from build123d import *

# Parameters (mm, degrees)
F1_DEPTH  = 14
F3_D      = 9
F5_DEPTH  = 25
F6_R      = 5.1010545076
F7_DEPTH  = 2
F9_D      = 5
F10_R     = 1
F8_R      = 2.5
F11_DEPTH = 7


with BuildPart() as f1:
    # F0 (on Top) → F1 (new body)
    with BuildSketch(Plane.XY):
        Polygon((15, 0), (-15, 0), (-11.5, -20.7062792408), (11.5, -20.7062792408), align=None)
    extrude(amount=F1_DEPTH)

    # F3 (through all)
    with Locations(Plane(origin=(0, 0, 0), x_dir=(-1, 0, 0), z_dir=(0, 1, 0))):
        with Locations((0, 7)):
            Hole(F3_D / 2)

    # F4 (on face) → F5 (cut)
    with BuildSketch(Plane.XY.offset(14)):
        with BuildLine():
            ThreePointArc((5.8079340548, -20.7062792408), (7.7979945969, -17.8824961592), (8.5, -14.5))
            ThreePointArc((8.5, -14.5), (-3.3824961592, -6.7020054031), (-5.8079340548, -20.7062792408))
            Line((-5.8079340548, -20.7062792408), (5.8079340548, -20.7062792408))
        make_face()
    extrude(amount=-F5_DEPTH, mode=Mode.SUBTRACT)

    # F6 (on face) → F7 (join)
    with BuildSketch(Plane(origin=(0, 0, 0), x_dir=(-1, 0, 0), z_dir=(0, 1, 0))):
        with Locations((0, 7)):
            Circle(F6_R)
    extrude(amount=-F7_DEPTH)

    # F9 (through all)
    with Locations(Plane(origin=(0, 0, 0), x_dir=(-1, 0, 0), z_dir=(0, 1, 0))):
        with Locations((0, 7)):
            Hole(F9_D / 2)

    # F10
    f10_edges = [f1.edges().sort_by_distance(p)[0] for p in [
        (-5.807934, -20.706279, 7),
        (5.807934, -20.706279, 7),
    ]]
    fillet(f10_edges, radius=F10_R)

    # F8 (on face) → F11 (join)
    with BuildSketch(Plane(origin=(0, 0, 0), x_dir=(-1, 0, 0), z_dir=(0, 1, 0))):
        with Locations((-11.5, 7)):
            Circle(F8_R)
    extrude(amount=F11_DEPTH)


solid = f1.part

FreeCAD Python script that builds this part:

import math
import FreeCAD as App
import Part
import Sketcher
from FreeCAD import Vector
Q = App.Units.Quantity


def edges_at(feature, points):
    """Names of the edges that pass closest to the given points."""
    edges = feature.Shape.Edges
    near = lambda p: min(range(len(edges)), key=lambda i: edges[i].distToShape(Part.Vertex(*p))[0])
    return sorted({f"Edge{near(p) + 1}" for p in points})

doc = App.newDocument("Part")
body = doc.addObject("PartDesign::Body", "Body")

# Sketch on XY plane
sketch1 = body.newObject("Sketcher::SketchObject", "Sketch")
sketch1.AttachmentSupport = (doc.getObject("XY_Plane"), [""])
sketch1.MapMode = "FlatFace"
sketch1.addGeometry([
    Part.LineSegment(Vector(15, 0, 0), Vector(-15, 0, 0)),
    Part.LineSegment(Vector(-15, 0, 0), Vector(-12, -21, 0)),
    Part.LineSegment(Vector(-12, -21, 0), Vector(12, -21, 0)),
    Part.LineSegment(Vector(12, -21, 0), Vector(15, 0, 0)),
], False)
sketch1.addConstraint([
    Sketcher.Constraint("Coincident", 0, 2, 1, 1),
    Sketcher.Constraint("Coincident", 1, 2, 2, 1),
    Sketcher.Constraint("Coincident", 2, 2, 3, 1),
    Sketcher.Constraint("Coincident", 3, 2, 0, 1),
    Sketcher.Constraint("Horizontal", 0),
    Sketcher.Constraint("Horizontal", 2),
    Sketcher.Constraint("Symmetric", 0, 2, 3, 2, -1, 1),
    Sketcher.Constraint("Equal", 1, 3),
    Sketcher.Constraint("DistanceX", 0, 2, 0, 1, Q("30 mm")),
    Sketcher.Constraint("DistanceX", 2, 1, 2, 2, Q("23 mm")),
    Sketcher.Constraint("Distance", 1, Q("21 mm")),
])
pad1 = body.newObject("PartDesign::Pad", "Pad")
pad1.Profile = sketch1
pad1.Length = 14

# Sketch on XZ plane
sketch2 = body.newObject("Sketcher::SketchObject", "Sketch001")
sketch2.AttachmentSupport = (doc.getObject("XZ_Plane"), [""])
sketch2.MapMode = "FlatFace"
sketch2.addGeometry(Part.Circle(Vector(0, 7, 0), Vector(0, 0, 1), 4.5), False)
sketch2.addConstraint([
    Sketcher.Constraint("PointOnObject", 0, 3, -2),
    Sketcher.Constraint("Diameter", 0, Q("9 mm")),
    Sketcher.Constraint("DistanceY", -1, 1, 0, 3, Q("7 mm")),
])
doc.recompute()
hole = body.newObject("PartDesign::Hole", "Hole")
hole.Profile = sketch2
hole.ThreadType = "None"
hole.Diameter = 9
hole.DepthType = "ThroughAll"
hole.Reversed = True

# Sketch on XY plane
sketch3 = body.newObject("Sketcher::SketchObject", "Sketch002")
sketch3.AttachmentSupport = (doc.getObject("XY_Plane"), [""])
sketch3.MapMode = "FlatFace"
sketch3.AttachmentOffset = App.Placement(Vector(0, 0, 14), App.Rotation())
sketch3.addGeometry([
    Part.ArcOfCircle(Part.Circle(Vector(0, -14, 0), Vector(0, 0, 1), 8), math.radians(-47), math.radians(0)),
    Part.ArcOfCircle(Part.Circle(Vector(0, -14, 0), Vector(0, 0, 1), 8), math.radians(0), math.radians(227)),
    Part.LineSegment(Vector(-6, -21, 0), Vector(6, -21, 0)),
], False)
sketch3.addConstraint([
    Sketcher.Constraint("Tangent", 0, 2, 1, 1),
    Sketcher.Constraint("Coincident", 1, 2, 2, 1),
    Sketcher.Constraint("Coincident", 2, 2, 0, 1),
    Sketcher.Constraint("Horizontal", 2),
    Sketcher.Constraint("Equal", 0, 1),
    Sketcher.Constraint("PointOnObject", 0, 3, -2),
    Sketcher.Constraint("Horizontal", 1, 3, 0, 2),
    Sketcher.Constraint("Radius", 0, Q("8.5 mm")),
    Sketcher.Constraint("DistanceY", 0, 3, -1, 1, Q("14.5 mm")),
    Sketcher.Constraint("DistanceX", 2, 1, 2, 2, Q("11.615868 mm")),
])
pocket1 = body.newObject("PartDesign::Pocket", "Pocket")
pocket1.Profile = sketch3
pocket1.Length = 25

# Sketch on XZ plane
sketch4 = body.newObject("Sketcher::SketchObject", "Sketch003")
sketch4.AttachmentSupport = (doc.getObject("XZ_Plane"), [""])
sketch4.MapMode = "FlatFace"
sketch4.addGeometry(Part.Circle(Vector(0, 7, 0), Vector(0, 0, 1), 5), False)
sketch4.addConstraint([
    Sketcher.Constraint("PointOnObject", 0, 3, -2),
    Sketcher.Constraint("DistanceY", -1, 1, 0, 3, Q("7 mm")),
    Sketcher.Constraint("Diameter", 0, Q("10.202109 mm")),
])
pad2 = body.newObject("PartDesign::Pad", "Pad001")
pad2.Profile = sketch4
pad2.Length = 2

# Sketch on XZ plane
sketch5 = body.newObject("Sketcher::SketchObject", "Sketch004")
sketch5.AttachmentSupport = (doc.getObject("XZ_Plane"), [""])
sketch5.MapMode = "FlatFace"
sketch5.addGeometry(Part.Circle(Vector(0, 7, 0), Vector(0, 0, 1), 2.5), False)
sketch5.addConstraint([
    Sketcher.Constraint("PointOnObject", 0, 3, -2),
    Sketcher.Constraint("Diameter", 0, Q("5 mm")),
    Sketcher.Constraint("DistanceY", -1, 1, 0, 3, Q("7 mm")),
])
doc.recompute()
hole2 = body.newObject("PartDesign::Hole", "Hole001")
hole2.Profile = sketch5
hole2.ThreadType = "None"
hole2.Diameter = 5
hole2.DepthType = "ThroughAll"
hole2.Reversed = True
doc.recompute()

fillet = body.newObject("PartDesign::Fillet", "Fillet")
fillet.Base = (hole2, edges_at(hole2, [(-5.808, -20.706, 7), (5.808, -20.706, 7)]))
fillet.Radius = 1

# Sketch on XZ plane
sketch6 = body.newObject("Sketcher::SketchObject", "Sketch005")
sketch6.AttachmentSupport = (doc.getObject("XZ_Plane"), [""])
sketch6.MapMode = "FlatFace"
sketch6.addGeometry(Part.Circle(Vector(11.5, 7, 0), Vector(0, 0, 1), 2.5), False)
sketch6.addConstraint([
    Sketcher.Constraint("Diameter", 0, Q("5 mm")),
    Sketcher.Constraint("DistanceY", -1, 1, 0, 3, Q("7 mm")),
    Sketcher.Constraint("DistanceX", -1, 1, 0, 3, Q("11.5 mm")),
])
pad3 = body.newObject("PartDesign::Pad", "Pad002")
pad3.Profile = sketch6
pad3.Length = 7
pad3.Reversed = True

doc.recompute()
